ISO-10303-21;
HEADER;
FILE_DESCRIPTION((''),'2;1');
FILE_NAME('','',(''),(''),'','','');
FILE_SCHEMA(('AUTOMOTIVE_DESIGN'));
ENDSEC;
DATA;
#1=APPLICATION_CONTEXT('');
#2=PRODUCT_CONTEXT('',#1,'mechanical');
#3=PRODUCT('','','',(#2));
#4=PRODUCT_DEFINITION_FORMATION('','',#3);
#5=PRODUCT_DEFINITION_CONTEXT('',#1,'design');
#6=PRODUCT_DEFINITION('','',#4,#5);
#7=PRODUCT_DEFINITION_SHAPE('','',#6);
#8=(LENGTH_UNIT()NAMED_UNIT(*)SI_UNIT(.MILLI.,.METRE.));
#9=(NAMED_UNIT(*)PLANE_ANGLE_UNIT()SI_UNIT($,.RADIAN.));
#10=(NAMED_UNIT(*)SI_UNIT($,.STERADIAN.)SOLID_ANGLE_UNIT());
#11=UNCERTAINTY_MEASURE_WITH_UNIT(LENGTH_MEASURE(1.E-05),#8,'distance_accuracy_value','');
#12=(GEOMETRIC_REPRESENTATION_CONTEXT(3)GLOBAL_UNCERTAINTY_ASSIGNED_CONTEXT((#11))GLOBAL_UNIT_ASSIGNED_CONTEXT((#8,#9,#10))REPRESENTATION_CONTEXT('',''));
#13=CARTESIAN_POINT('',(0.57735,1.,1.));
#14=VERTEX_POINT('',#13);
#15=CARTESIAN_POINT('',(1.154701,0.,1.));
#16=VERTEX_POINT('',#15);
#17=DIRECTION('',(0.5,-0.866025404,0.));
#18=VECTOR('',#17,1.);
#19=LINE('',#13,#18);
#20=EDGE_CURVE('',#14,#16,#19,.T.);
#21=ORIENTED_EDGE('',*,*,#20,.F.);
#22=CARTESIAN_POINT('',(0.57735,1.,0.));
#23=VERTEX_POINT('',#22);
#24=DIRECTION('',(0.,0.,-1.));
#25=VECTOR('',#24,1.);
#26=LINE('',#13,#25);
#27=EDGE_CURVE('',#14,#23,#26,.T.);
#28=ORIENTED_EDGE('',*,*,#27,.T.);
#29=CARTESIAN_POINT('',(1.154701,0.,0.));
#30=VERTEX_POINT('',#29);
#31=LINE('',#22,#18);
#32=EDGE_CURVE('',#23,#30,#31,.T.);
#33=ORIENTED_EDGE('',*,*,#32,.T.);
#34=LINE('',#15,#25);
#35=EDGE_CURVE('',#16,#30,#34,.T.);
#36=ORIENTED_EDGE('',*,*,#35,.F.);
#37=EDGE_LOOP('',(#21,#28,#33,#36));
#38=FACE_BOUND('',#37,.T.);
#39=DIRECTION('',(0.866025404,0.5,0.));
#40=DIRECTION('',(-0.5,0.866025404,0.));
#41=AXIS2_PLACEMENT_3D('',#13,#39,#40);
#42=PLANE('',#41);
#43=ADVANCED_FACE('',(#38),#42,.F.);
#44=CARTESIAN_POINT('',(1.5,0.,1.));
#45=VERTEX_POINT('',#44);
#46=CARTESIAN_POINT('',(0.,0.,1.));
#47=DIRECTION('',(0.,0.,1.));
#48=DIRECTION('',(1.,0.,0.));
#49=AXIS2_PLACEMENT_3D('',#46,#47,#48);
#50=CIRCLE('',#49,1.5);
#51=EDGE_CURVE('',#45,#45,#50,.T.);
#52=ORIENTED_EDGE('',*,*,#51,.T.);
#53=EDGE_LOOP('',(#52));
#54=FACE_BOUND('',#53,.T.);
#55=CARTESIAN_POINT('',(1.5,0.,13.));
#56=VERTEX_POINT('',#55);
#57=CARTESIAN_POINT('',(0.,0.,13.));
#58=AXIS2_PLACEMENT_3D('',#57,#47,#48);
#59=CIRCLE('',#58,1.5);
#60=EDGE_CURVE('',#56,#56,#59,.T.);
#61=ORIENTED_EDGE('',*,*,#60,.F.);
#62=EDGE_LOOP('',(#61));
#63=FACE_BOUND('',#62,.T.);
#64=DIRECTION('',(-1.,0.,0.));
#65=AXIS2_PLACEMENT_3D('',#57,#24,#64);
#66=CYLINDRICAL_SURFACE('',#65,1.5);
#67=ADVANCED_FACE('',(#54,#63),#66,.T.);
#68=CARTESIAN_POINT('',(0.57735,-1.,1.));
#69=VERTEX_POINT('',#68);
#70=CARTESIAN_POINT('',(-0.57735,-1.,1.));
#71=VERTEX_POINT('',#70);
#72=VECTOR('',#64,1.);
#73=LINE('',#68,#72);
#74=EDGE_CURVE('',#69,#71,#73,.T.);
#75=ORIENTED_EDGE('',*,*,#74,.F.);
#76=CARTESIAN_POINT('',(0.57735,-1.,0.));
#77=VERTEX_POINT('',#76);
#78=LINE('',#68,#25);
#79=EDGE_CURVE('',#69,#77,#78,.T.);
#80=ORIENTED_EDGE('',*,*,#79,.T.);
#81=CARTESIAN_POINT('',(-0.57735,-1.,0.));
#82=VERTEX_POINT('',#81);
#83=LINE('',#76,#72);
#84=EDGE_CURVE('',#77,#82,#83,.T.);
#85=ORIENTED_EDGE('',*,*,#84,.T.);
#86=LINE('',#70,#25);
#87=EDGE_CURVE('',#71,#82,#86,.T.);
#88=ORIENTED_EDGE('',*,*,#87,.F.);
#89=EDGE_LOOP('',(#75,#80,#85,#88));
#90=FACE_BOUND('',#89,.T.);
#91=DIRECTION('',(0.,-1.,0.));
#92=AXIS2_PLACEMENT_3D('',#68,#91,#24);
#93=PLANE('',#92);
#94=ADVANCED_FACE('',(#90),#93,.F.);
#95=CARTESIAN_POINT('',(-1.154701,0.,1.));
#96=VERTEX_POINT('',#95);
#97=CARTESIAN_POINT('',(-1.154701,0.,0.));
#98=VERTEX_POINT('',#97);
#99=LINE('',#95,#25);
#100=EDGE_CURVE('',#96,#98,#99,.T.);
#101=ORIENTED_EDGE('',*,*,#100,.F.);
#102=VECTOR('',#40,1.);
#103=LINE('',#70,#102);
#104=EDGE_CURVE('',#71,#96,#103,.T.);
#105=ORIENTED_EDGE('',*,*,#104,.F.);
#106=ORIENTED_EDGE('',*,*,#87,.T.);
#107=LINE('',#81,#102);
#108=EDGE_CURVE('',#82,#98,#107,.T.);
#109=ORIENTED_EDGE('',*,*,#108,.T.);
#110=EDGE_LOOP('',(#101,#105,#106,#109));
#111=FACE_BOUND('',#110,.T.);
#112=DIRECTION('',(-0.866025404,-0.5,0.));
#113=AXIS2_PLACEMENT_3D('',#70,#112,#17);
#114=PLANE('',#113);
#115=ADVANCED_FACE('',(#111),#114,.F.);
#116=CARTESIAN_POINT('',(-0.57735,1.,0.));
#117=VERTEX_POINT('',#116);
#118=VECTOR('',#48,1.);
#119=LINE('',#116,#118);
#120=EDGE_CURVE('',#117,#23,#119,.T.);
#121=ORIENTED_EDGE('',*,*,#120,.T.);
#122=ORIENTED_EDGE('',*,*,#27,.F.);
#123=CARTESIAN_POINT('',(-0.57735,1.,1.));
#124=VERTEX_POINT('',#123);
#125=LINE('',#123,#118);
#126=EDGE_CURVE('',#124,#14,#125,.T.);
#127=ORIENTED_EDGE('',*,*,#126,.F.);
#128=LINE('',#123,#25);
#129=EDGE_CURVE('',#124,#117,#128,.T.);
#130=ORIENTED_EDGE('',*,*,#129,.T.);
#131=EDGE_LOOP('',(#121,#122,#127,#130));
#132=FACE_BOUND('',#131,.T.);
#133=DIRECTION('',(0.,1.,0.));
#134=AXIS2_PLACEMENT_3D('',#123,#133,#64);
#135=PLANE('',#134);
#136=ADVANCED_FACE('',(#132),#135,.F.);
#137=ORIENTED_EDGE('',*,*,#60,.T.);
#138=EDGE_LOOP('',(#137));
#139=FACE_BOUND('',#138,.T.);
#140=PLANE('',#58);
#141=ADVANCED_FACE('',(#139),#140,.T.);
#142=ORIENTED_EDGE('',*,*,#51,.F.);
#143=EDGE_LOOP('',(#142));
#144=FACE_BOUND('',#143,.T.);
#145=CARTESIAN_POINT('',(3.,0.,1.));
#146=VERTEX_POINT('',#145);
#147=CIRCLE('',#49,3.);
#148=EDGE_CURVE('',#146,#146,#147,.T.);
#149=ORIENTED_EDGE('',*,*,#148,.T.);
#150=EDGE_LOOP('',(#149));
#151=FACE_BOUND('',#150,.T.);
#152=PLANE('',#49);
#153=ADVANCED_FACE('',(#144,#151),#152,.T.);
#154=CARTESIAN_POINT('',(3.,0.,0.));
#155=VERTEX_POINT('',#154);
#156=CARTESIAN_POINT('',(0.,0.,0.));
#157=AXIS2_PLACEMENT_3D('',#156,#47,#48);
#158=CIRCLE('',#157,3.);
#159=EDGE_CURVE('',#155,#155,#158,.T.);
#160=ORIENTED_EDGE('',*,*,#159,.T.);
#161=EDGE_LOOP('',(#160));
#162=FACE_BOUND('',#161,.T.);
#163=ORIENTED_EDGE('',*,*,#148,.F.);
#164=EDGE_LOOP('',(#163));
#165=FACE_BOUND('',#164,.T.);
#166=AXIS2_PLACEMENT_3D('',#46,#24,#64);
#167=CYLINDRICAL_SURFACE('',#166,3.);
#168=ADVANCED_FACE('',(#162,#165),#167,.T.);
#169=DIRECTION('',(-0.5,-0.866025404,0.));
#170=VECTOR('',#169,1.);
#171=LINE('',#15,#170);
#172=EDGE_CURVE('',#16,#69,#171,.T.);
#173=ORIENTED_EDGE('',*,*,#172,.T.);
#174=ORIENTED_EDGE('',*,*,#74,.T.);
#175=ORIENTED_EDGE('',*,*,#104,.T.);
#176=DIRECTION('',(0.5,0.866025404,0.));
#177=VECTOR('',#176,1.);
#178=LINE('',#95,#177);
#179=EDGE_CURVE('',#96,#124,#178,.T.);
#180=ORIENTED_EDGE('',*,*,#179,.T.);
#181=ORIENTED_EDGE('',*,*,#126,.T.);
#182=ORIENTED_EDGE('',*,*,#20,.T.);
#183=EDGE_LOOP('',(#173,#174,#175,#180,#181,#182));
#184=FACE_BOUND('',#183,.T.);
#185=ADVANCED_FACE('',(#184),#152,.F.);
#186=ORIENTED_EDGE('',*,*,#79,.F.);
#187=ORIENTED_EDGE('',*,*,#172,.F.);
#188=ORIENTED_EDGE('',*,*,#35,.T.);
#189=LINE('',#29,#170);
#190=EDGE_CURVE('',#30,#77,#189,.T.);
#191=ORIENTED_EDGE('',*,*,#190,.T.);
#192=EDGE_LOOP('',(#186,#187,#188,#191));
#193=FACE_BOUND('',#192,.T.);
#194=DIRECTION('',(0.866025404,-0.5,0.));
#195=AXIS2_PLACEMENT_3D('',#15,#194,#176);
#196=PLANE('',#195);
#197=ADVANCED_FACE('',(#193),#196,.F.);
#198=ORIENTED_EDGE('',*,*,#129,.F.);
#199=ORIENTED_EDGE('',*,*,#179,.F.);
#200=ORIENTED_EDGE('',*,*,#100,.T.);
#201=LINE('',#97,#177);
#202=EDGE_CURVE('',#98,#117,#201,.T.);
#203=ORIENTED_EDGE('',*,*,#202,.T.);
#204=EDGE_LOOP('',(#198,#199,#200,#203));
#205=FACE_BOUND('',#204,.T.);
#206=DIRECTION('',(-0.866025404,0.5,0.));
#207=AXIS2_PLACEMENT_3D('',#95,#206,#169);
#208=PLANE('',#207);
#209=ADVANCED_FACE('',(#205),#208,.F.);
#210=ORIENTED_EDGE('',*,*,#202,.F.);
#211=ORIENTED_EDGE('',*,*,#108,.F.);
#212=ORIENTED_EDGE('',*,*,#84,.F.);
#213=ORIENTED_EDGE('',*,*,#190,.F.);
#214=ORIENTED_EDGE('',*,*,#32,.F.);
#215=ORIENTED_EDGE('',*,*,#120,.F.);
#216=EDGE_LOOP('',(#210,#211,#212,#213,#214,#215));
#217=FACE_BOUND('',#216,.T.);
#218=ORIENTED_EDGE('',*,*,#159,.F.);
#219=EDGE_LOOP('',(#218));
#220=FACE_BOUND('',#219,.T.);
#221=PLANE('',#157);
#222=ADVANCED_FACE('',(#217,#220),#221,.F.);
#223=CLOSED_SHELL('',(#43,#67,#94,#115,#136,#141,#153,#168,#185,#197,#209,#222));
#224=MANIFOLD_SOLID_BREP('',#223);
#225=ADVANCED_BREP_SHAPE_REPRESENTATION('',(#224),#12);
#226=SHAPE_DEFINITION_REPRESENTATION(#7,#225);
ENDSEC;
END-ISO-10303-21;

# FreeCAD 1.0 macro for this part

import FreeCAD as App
import Part
import Sketcher
Q = App.Units.Quantity


def add_polygon(sketch, points):
    """Adds a closed chain of lines whose ends are joined by coincident constraints."""
    first, n = sketch.GeometryCount, len(points)
    for a, b in zip(points, points[1:] + points[:1]):
        sketch.addGeometry(Part.LineSegment(App.Vector(*a, 0), App.Vector(*b, 0)), False)
    for i in range(n):
        sketch.addConstraint(Sketcher.Constraint("Coincident", first + i, 2, first + (i + 1) % n, 1))

doc = App.newDocument("Part")
body = doc.addObject("PartDesign::Body", "Body")

# Sketch on XY plane
sketch1 = body.newObject("Sketcher::SketchObject", "Sketch")
sketch1.AttachmentSupport = (doc.getObject("XY_Plane"), [""])
sketch1.MapMode = "FlatFace"
sketch1.addGeometry(Part.Circle(App.Vector(0, 0, 0), App.Vector(0, 0, 1), 3), False)
sketch1.addConstraint([
    Sketcher.Constraint("Coincident", 0, 3, -1, 1),
    Sketcher.Constraint("Diameter", 0, 6.0),
])
pad1 = body.newObject("PartDesign::Pad", "Pad")
pad1.Profile = sketch1
pad1.Length = 1

# Sketch on XY plane
sketch2 = body.newObject("Sketcher::SketchObject", "Sketch001")
sketch2.AttachmentSupport = (doc.getObject("XY_Plane"), [""])
sketch2.MapMode = "FlatFace"
add_polygon(sketch2, [(-1.2, 0), (-0.6, 1), (0.6, 1), (1.2, 0), (0.6, -1), (-0.6, -1)])  # lines 0-5
sketch2.addConstraint([
    Sketcher.Constraint("Horizontal", 1),
    Sketcher.Constraint("Horizontal", 4),
    Sketcher.Constraint("Symmetric", 0, 2, 3, 2, -1, 1),
    Sketcher.Constraint("Symmetric", 2, 2, 5, 2, -1, 1),
    Sketcher.Constraint("PointOnObject", 2, 2, -1),
    Sketcher.Constraint("Parallel", 2, 5),
    Sketcher.Constraint("Vertical", 1, 2, 3, 2),
    Sketcher.Constraint("Angle", 0, Q("60 deg")),
    Sketcher.Constraint("DistanceY", -1, 1, 0, 2, 1.0),
    Sketcher.Constraint("DistanceX", 1, 1, 1, 2, 1.154701),
])
pocket1 = body.newObject("PartDesign::Pocket", "Pocket")
pocket1.Profile = sketch2
pocket1.Length = 1
pocket1.Reversed = True

# Sketch on XY plane
sketch3 = body.newObject("Sketcher::SketchObject", "Sketch002")
sketch3.AttachmentSupport = (doc.getObject("XY_Plane"), [""])
sketch3.MapMode = "FlatFace"
sketch3.AttachmentOffset = App.Placement(App.Vector(0, 0, 1), App.Rotation())
sketch3.addGeometry(Part.Circle(App.Vector(0, 0, 0), App.Vector(0, 0, 1), 1.5), False)
sketch3.addConstraint([
    Sketcher.Constraint("Coincident", 0, 3, -1, 1),
    Sketcher.Constraint("Diameter", 0, 3.0),
])
pad2 = body.newObject("PartDesign::Pad", "Pad001")
pad2.Profile = sketch3
pad2.Length = 12

doc.recompute()
